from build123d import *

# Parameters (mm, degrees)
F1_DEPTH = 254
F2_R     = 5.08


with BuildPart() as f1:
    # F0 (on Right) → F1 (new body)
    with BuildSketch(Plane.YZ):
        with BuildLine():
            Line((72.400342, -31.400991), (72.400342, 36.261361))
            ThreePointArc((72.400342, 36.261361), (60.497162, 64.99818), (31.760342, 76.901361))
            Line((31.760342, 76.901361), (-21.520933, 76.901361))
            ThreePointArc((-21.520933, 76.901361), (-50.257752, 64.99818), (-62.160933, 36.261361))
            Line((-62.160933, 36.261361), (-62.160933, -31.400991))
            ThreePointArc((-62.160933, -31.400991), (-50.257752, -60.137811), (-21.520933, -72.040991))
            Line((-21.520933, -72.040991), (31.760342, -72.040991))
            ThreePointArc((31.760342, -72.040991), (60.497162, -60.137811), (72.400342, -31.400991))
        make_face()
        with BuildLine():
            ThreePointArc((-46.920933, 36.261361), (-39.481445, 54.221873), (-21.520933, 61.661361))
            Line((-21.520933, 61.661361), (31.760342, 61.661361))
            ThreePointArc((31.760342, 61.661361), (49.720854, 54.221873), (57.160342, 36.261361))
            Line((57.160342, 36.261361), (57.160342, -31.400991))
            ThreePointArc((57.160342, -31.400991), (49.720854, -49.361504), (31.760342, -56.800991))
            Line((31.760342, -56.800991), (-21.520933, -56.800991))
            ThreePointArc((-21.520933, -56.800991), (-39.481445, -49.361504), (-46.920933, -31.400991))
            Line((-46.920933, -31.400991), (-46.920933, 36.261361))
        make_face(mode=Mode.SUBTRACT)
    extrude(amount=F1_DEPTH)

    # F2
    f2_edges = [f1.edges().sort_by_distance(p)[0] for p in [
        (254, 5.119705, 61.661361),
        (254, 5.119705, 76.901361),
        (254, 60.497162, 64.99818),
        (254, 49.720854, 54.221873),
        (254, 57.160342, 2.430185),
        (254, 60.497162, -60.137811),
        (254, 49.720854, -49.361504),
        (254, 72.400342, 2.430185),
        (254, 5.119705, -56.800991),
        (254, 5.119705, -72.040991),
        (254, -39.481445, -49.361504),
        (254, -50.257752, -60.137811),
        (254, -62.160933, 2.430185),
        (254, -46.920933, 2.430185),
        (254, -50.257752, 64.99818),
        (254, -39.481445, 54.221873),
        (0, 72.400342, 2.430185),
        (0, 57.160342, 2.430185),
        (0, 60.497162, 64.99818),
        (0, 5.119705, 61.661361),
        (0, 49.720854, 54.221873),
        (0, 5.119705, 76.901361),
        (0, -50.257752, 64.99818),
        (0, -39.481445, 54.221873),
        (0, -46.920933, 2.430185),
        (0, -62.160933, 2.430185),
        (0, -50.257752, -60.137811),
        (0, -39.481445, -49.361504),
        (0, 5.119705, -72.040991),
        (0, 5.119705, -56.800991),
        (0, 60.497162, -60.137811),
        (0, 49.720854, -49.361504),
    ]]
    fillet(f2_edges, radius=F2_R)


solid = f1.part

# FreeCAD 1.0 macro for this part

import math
import FreeCAD as App
import Part
import Sketcher
Q = App.Units.Quantity


def edges_at(feature, points):
    """Names of the edges that pass closest to the given points."""
    edges = feature.Shape.Edges
    near = lambda p: min(range(len(edges)), key=lambda i: edges[i].distToShape(Part.Vertex(*p))[0])
    return sorted({f"Edge{near(p) + 1}" for p in points})

doc = App.newDocument("Part")
body = doc.addObject("PartDesign::Body", "Body")

sketch1 = body.newObject("Sketcher::SketchObject", "Sketch")
sketch1.AttachmentSupport = (doc.getObject("YZ_Plane"), [""])
sketch1.MapMode = "FlatFace"
sketch1.addGeometry([
    Part.LineSegment(App.Vector(72, -31, 0), App.Vector(72, 36, 0)),
    Part.ArcOfCircle(Part.Circle(App.Vector(32, 36, 0), App.Vector(0, 0, 1), 41), math.radians(0), math.radians(90)),
    Part.LineSegment(App.Vector(32, 77, 0), App.Vector(-22, 77, 0)),
    Part.ArcOfCircle(Part.Circle(App.Vector(-22, 36, 0), App.Vector(0, 0, 1), 41), math.radians(90), math.radians(180)),
    Part.LineSegment(App.Vector(-62, 36, 0), App.Vector(-62, -31, 0)),
    Part.ArcOfCircle(Part.Circle(App.Vector(-22, -31, 0), App.Vector(0, 0, 1), 41), math.radians(-180), math.radians(-90)),
    Part.LineSegment(App.Vector(-22, -72, 0), App.Vector(32, -72, 0)),
    Part.ArcOfCircle(Part.Circle(App.Vector(32, -31, 0), App.Vector(0, 0, 1), 41), math.radians(-90), math.radians(0)),
    Part.LineSegment(App.Vector(-47, -31, 0), App.Vector(-47, 36, 0)),
    Part.ArcOfCircle(Part.Circle(App.Vector(-22, 36, 0), App.Vector(0, 0, 1), 25), math.radians(90), math.radians(180)),
    Part.LineSegment(App.Vector(-22, 62, 0), App.Vector(32, 62, 0)),
    Part.ArcOfCircle(Part.Circle(App.Vector(32, 36, 0), App.Vector(0, 0, 1), 25), math.radians(0), math.radians(90)),
    Part.LineSegment(App.Vector(57, 36, 0), App.Vector(57, -31, 0)),
    Part.ArcOfCircle(Part.Circle(App.Vector(32, -31, 0), App.Vector(0, 0, 1), 25), math.radians(-90), math.radians(0)),
    Part.LineSegment(App.Vector(32, -57, 0), App.Vector(-22, -57, 0)),
    Part.ArcOfCircle(Part.Circle(App.Vector(-22, -31, 0), App.Vector(0, 0, 1), 25), math.radians(180), math.radians(270)),
], False)
sketch1.addConstraint([
    Sketcher.Constraint("Tangent", 0, 2, 1, 1),
    Sketcher.Constraint("Tangent", 1, 2, 2, 1),
    Sketcher.Constraint("Tangent", 2, 2, 3, 1),
    Sketcher.Constraint("Tangent", 3, 2, 4, 1),
    Sketcher.Constraint("Tangent", 4, 2, 5, 1),
    Sketcher.Constraint("Tangent", 5, 2, 6, 1),
    Sketcher.Constraint("Tangent", 6, 2, 7, 1),
    Sketcher.Constraint("Tangent", 7, 2, 0, 1),
    Sketcher.Constraint("Tangent", 8, 2, 9, 2),
    Sketcher.Constraint("Tangent", 9, 1, 10, 1),
    Sketcher.Constraint("Tangent", 10, 2, 11, 2),
    Sketcher.Constraint("Tangent", 11, 1, 12, 1),
    Sketcher.Constraint("Tangent", 12, 2, 13, 2),
    Sketcher.Constraint("Tangent", 13, 1, 14, 1),
    Sketcher.Constraint("Tangent", 14, 2, 15, 2),
    Sketcher.Constraint("Tangent", 15, 1, 8, 1),
    Sketcher.Constraint("Vertical", 0),
    Sketcher.Constraint("Horizontal", 2),
    Sketcher.Constraint("Vertical", 4),
    Sketcher.Constraint("Horizontal", 6),
    Sketcher.Constraint("Vertical", 8),
    Sketcher.Constraint("Horizontal", 10),
    Sketcher.Constraint("Vertical", 12),
    Sketcher.Constraint("Horizontal", 14),
    Sketcher.Constraint("Coincident", 9, 3, 3, 3),
    Sketcher.Constraint("Coincident", 11, 3, 1, 3),
    Sketcher.Constraint("Coincident", 13, 3, 7, 3),
    Sketcher.Constraint("Equal", 1, 3),
    Sketcher.Constraint("Equal", 3, 5),
    Sketcher.Constraint("Equal", 5, 7),
    Sketcher.Constraint("Equal", 13, 15),
    Sketcher.Constraint("Radius", 9, Q("1 in")),
    Sketcher.Constraint("Radius", 1, Q("1.6 in")),
    Sketcher.Constraint("DistanceY", 0, 1, 0, 2, 67.662352),
    Sketcher.Constraint("DistanceX", 2, 2, 2, 1, 53.281275),
    Sketcher.Constraint("DistanceX", -1, 1, 1, 3, 31.760342),
    Sketcher.Constraint("DistanceY", -1, 1, 1, 3, 36.261361),
])
pad1 = body.newObject("PartDesign::Pad", "Pad")
pad1.Profile = sketch1
pad1.Length = Q("10 in")
doc.recompute()

fillet = body.newObject("PartDesign::Fillet", "Fillet")
fillet.Base = (pad1, edges_at(pad1, [
    (254, 5.12, 61.661),
    (254, 5.12, 76.901),
    (254, 60.497, 64.998),
    (254, 49.721, 54.222),
    (254, 57.16, 2.43),
    (254, 60.497, -60.138),
    (254, 49.721, -49.362),
    (254, 72.4, 2.43),
    (254, 5.12, -56.801),
    (254, 5.12, -72.041),
    (254, -39.481, -49.362),
    (254, -50.258, -60.138),
    (254, -62.161, 2.43),
    (254, -46.921, 2.43),
    (254, -50.258, 64.998),
    (254, -39.481, 54.222),
    (0, 72.4, 2.43),
    (0, 57.16, 2.43),
    (0, 60.497, 64.998),
    (0, 5.12, 61.661),
    (0, 49.721, 54.222),
    (0, 5.12, 76.901),
    (0, -50.258, 64.998),
    (0, -39.481, 54.222),
    (0, -46.921, 2.43),
    (0, -62.161, 2.43),
    (0, -50.258, -60.138),
    (0, -39.481, -49.362),
    (0, 5.12, -72.041),
    (0, 5.12, -56.801),
    (0, 60.497, -60.138),
    (0, 49.721, -49.362),
]))
fillet.Radius = Q("0.2 in")

doc.recompute()
